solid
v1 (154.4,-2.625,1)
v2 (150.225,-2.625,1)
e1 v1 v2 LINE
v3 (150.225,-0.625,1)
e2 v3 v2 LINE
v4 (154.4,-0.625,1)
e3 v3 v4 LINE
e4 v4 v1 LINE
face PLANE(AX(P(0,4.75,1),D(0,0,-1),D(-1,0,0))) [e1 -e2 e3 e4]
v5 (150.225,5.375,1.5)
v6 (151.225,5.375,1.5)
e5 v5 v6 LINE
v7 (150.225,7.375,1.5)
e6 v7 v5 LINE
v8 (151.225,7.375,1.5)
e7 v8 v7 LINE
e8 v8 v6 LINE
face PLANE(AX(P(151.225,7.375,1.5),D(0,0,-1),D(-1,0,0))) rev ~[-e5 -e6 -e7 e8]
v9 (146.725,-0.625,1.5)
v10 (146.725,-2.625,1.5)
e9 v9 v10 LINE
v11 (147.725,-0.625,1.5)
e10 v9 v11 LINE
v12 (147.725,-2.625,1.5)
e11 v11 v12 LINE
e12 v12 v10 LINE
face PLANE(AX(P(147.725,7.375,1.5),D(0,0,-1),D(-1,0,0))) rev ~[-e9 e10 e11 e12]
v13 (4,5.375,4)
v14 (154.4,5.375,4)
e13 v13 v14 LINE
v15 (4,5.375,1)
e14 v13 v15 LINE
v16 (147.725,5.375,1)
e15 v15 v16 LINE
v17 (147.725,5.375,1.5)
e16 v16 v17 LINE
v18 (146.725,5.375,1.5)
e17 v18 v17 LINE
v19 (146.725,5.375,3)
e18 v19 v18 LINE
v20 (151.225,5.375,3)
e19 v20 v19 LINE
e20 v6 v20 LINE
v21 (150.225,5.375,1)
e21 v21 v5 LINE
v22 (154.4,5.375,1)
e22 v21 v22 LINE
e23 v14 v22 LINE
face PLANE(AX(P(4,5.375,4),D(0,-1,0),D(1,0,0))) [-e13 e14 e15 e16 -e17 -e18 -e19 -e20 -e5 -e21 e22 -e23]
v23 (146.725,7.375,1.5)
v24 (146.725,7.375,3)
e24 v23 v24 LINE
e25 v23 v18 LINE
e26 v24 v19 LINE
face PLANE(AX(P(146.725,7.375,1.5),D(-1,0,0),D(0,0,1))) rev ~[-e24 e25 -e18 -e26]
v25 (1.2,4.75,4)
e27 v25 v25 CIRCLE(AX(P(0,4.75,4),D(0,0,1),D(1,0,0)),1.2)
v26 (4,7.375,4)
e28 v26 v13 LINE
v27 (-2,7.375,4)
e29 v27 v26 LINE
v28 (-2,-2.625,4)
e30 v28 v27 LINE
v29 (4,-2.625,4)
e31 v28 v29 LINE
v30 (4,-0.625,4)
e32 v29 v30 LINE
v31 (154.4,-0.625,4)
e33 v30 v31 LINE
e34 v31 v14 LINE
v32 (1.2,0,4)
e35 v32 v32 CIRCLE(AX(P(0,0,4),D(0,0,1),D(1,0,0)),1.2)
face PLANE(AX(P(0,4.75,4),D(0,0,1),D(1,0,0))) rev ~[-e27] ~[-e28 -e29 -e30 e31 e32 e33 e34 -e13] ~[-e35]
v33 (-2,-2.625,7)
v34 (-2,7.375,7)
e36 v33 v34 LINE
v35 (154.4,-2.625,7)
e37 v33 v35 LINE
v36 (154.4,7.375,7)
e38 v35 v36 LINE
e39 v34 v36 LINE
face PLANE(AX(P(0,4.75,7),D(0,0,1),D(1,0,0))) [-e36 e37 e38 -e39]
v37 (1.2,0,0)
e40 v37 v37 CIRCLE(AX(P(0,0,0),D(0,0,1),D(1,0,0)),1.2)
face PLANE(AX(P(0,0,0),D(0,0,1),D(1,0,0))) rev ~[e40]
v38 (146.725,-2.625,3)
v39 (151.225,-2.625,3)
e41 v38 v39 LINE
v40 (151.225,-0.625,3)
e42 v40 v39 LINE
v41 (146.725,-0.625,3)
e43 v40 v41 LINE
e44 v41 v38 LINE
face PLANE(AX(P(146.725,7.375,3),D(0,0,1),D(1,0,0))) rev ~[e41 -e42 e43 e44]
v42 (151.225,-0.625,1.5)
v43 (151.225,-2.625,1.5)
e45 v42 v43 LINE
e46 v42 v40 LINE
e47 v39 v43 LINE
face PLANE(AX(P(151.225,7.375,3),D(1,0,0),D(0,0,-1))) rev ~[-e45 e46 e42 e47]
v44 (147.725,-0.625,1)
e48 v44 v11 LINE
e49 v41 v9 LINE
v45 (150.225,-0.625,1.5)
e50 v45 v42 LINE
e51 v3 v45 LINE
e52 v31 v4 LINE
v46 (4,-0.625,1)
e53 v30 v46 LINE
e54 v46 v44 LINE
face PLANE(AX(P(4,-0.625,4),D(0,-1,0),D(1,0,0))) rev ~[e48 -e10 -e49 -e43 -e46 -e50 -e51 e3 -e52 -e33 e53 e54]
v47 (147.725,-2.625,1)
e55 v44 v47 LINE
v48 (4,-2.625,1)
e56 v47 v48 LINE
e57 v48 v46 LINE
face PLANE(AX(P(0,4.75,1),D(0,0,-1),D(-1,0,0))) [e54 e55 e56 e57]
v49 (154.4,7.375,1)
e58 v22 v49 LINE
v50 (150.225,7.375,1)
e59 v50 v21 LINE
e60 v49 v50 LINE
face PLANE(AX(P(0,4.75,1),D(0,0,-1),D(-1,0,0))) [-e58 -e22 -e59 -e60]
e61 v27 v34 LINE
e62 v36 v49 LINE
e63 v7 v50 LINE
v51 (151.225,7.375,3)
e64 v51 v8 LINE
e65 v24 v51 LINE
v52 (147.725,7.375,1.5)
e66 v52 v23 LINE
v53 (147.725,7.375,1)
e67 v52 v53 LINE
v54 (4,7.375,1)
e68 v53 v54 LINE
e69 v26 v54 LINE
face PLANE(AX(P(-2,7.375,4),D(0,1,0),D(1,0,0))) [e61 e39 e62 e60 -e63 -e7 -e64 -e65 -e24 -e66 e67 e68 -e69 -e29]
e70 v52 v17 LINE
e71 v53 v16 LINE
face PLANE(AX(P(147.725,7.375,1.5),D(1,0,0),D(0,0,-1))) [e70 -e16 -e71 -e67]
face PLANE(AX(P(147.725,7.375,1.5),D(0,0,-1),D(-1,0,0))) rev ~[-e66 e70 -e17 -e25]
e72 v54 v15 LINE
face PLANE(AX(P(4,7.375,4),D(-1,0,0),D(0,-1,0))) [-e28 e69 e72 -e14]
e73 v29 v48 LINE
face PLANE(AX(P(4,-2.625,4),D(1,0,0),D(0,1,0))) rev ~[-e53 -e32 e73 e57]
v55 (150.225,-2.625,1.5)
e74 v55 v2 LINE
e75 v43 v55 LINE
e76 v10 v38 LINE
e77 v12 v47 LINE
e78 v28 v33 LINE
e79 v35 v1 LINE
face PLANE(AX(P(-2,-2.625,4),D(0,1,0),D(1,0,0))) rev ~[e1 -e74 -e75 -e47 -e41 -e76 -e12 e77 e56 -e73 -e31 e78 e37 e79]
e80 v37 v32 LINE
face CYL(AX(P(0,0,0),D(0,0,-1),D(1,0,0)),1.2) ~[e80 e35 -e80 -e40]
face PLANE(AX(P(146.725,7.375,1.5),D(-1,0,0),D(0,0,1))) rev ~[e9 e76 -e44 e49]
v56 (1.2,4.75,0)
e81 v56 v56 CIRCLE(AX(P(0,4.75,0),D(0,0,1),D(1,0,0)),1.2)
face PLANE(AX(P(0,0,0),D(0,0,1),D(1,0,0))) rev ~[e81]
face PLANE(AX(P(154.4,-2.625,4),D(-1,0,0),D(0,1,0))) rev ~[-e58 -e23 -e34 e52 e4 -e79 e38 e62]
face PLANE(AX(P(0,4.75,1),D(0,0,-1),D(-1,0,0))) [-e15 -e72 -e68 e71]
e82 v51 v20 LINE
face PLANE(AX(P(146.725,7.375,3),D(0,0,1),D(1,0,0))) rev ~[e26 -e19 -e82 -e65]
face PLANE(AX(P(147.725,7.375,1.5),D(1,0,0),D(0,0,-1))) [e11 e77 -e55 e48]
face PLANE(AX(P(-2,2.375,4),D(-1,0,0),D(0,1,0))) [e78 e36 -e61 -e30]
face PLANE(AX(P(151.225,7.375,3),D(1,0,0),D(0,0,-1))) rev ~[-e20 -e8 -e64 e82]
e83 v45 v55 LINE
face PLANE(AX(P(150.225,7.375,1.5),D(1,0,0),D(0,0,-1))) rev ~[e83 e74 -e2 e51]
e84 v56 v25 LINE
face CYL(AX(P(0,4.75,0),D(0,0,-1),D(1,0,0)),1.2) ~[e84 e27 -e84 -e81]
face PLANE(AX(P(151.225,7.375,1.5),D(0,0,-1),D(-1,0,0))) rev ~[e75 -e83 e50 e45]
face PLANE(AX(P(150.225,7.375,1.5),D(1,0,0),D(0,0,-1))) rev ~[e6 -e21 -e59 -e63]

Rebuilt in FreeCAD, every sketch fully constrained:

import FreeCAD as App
import Part
import Sketcher
from FreeCAD import Vector


def add_polygon(sketch, points):
    """Adds a closed chain of lines whose ends are joined by coincident constraints."""
    first, n = sketch.GeometryCount, len(points)
    for a, b in zip(points, points[1:] + points[:1]):
        sketch.addGeometry(Part.LineSegment(App.Vector(*a, 0), App.Vector(*b, 0)), False)
    for i in range(n):
        sketch.addConstraint(Sketcher.Constraint("Coincident", first + i, 2, first + (i + 1) % n, 1))

doc = App.newDocument("Part")
body = doc.addObject("PartDesign::Body", "Body")
body.AllowCompound = True

# Sketch on XY plane
sketch1 = body.newObject("Sketcher::SketchObject", "Sketch")
sketch1.AttachmentSupport = (doc.getObject("XY_Plane"), [""])
sketch1.MapMode = "FlatFace"
sketch1.addGeometry(Part.Circle(Vector(0, 0, 0), Vector(0, 0, 1), 1.2), False)
sketch1.addGeometry(Part.Circle(Vector(0, 4.8, 0), Vector(0, 0, 1), 1.2), False)
sketch1.addConstraint(Sketcher.Constraint("Coincident", 0, 3, -1, 1))
sketch1.addConstraint(Sketcher.Constraint("Equal", 0, 1))
sketch1.addConstraint(Sketcher.Constraint("PointOnObject", 1, 3, -2))
sketch1.addConstraint(Sketcher.Constraint("Diameter", 0, 2.4))
sketch1.addConstraint(Sketcher.Constraint("DistanceY", -1, 1, 1, 3, 4.75))
pad1 = body.newObject("PartDesign::Pad", "Pad")
pad1.Profile = sketch1
pad1.Length = 4

# Sketch on XY plane
sketch2 = body.newObject("Sketcher::SketchObject", "Sketch001")
sketch2.AttachmentSupport = (doc.getObject("XY_Plane"), [""])
sketch2.MapMode = "FlatFace"
sketch2.AttachmentOffset = App.Placement(Vector(0, 0, 4), App.Rotation())
add_polygon(sketch2, [(-2, 7), (-2, -3), (154, -3), (154, 7)])  # lines 0-3
sketch2.addConstraint(Sketcher.Constraint("Vertical", 0))
sketch2.addConstraint(Sketcher.Constraint("Horizontal", 1))
sketch2.addConstraint(Sketcher.Constraint("Vertical", 2))
sketch2.addConstraint(Sketcher.Constraint("Horizontal", 3))
sketch2.addConstraint(Sketcher.Constraint("DistanceX", 1, 1, 1, 2, 156.4))
sketch2.addConstraint(Sketcher.Constraint("DistanceX", 0, 2, -1, 1, 2.0))
sketch2.addConstraint(Sketcher.Constraint("DistanceY", 0, 2, 0, 1, 10.0))
sketch2.addConstraint(Sketcher.Constraint("DistanceY", 0, 2, -1, 1, 2.625))
pad2 = body.newObject("PartDesign::Pad", "Pad001")
pad2.Profile = sketch2
pad2.Length = 3

# Sketch on XY plane
sketch3 = body.newObject("Sketcher::SketchObject", "Sketch002")
sketch3.AttachmentSupport = (doc.getObject("XY_Plane"), [""])
sketch3.MapMode = "FlatFace"
sketch3.AttachmentOffset = App.Placement(Vector(0, 0, 4), App.Rotation())
add_polygon(sketch3, [(4, 7.4), (154.4, 7.4), (154.4, 5.4), (4, 5.4)])  # lines 0-3
add_polygon(sketch3, [(154.4, -2.6), (4, -2.6), (4, -0.6), (154.4, -0.6)])  # lines 4-7
sketch3.addConstraint(Sketcher.Constraint("Horizontal", 0))
sketch3.addConstraint(Sketcher.Constraint("Vertical", 1))
sketch3.addConstraint(Sketcher.Constraint("Horizontal", 2))
sketch3.addConstraint(Sketcher.Constraint("Vertical", 3))
sketch3.addConstraint(Sketcher.Constraint("Horizontal", 4))
sketch3.addConstraint(Sketcher.Constraint("Vertical", 5))
sketch3.addConstraint(Sketcher.Constraint("Horizontal", 6))
sketch3.addConstraint(Sketcher.Constraint("Vertical", 7))
sketch3.addConstraint(Sketcher.Constraint("Vertical", 3, 2, 4, 2))
sketch3.addConstraint(Sketcher.Constraint("Vertical", 1, 2, 6, 2))
sketch3.addConstraint(Sketcher.Constraint("Equal", 3, 5))
sketch3.addConstraint(Sketcher.Constraint("DistanceY", 1, 2, 1, 1, 2.0))
sketch3.addConstraint(Sketcher.Constraint("DistanceX", 0, 1, 0, 2, 150.4))
sketch3.addConstraint(Sketcher.Constraint("DistanceX", -1, 1, 2, 2, 4.0))
sketch3.addConstraint(Sketcher.Constraint("DistanceY", 4, 2, 2, 2, 8.0))
sketch3.addConstraint(Sketcher.Constraint("DistanceY", -1, 1, 0, 2, 7.375))
pad3 = body.newObject("PartDesign::Pad", "Pad002")
pad3.Profile = sketch3
pad3.Length = 3
pad3.Reversed = True

# Sketch on XZ plane
sketch4 = body.newObject("Sketcher::SketchObject", "Sketch003")
sketch4.AttachmentSupport = (doc.getObject("XZ_Plane"), [""])
sketch4.MapMode = "FlatFace"
sketch4.AttachmentOffset = App.Placement(Vector(0, 0, -7.375), App.Rotation())
add_polygon(sketch4, [(147.7, 1), (147.7, 1.5), (146.7, 1.5), (146.7, 3), (151.2, 3), (151.2, 1.5), (150.2, 1.5), (150.2, 1)])  # lines 0-7
sketch4.addConstraint(Sketcher.Constraint("Vertical", 0))
sketch4.addConstraint(Sketcher.Constraint("Horizontal", 1))
sketch4.addConstraint(Sketcher.Constraint("Vertical", 2))
sketch4.addConstraint(Sketcher.Constraint("Horizontal", 3))
sketch4.addConstraint(Sketcher.Constraint("Vertical", 4))
sketch4.addConstraint(Sketcher.Constraint("Horizontal", 5))
sketch4.addConstraint(Sketcher.Constraint("Vertical", 6))
sketch4.addConstraint(Sketcher.Constraint("Horizontal", 7))
sketch4.addConstraint(Sketcher.Constraint("Horizontal", 1, 2, 4, 2))
sketch4.addConstraint(Sketcher.Constraint("Equal", 1, 5))
sketch4.addConstraint(Sketcher.Constraint("DistanceX", 1, 2, 1, 1, 1.0))
sketch4.addConstraint(Sketcher.Constraint("DistanceY", 0, 1, 0, 2, 0.5))
sketch4.addConstraint(Sketcher.Constraint("DistanceY", 2, 1, 2, 2, 1.5))
sketch4.addConstraint(Sketcher.Constraint("DistanceY", -1, 1, 6, 2, 1.0))
sketch4.addConstraint(Sketcher.Constraint("DistanceX", 3, 1, 3, 2, 4.5))
sketch4.addConstraint(Sketcher.Constraint("DistanceX", -1, 1, 0, 2, 147.725))
pocket1 = body.newObject("PartDesign::Pocket", "Pocket")
pocket1.Profile = sketch4
pocket1.Length = 10
pocket1.Reversed = True

doc.recompute()
